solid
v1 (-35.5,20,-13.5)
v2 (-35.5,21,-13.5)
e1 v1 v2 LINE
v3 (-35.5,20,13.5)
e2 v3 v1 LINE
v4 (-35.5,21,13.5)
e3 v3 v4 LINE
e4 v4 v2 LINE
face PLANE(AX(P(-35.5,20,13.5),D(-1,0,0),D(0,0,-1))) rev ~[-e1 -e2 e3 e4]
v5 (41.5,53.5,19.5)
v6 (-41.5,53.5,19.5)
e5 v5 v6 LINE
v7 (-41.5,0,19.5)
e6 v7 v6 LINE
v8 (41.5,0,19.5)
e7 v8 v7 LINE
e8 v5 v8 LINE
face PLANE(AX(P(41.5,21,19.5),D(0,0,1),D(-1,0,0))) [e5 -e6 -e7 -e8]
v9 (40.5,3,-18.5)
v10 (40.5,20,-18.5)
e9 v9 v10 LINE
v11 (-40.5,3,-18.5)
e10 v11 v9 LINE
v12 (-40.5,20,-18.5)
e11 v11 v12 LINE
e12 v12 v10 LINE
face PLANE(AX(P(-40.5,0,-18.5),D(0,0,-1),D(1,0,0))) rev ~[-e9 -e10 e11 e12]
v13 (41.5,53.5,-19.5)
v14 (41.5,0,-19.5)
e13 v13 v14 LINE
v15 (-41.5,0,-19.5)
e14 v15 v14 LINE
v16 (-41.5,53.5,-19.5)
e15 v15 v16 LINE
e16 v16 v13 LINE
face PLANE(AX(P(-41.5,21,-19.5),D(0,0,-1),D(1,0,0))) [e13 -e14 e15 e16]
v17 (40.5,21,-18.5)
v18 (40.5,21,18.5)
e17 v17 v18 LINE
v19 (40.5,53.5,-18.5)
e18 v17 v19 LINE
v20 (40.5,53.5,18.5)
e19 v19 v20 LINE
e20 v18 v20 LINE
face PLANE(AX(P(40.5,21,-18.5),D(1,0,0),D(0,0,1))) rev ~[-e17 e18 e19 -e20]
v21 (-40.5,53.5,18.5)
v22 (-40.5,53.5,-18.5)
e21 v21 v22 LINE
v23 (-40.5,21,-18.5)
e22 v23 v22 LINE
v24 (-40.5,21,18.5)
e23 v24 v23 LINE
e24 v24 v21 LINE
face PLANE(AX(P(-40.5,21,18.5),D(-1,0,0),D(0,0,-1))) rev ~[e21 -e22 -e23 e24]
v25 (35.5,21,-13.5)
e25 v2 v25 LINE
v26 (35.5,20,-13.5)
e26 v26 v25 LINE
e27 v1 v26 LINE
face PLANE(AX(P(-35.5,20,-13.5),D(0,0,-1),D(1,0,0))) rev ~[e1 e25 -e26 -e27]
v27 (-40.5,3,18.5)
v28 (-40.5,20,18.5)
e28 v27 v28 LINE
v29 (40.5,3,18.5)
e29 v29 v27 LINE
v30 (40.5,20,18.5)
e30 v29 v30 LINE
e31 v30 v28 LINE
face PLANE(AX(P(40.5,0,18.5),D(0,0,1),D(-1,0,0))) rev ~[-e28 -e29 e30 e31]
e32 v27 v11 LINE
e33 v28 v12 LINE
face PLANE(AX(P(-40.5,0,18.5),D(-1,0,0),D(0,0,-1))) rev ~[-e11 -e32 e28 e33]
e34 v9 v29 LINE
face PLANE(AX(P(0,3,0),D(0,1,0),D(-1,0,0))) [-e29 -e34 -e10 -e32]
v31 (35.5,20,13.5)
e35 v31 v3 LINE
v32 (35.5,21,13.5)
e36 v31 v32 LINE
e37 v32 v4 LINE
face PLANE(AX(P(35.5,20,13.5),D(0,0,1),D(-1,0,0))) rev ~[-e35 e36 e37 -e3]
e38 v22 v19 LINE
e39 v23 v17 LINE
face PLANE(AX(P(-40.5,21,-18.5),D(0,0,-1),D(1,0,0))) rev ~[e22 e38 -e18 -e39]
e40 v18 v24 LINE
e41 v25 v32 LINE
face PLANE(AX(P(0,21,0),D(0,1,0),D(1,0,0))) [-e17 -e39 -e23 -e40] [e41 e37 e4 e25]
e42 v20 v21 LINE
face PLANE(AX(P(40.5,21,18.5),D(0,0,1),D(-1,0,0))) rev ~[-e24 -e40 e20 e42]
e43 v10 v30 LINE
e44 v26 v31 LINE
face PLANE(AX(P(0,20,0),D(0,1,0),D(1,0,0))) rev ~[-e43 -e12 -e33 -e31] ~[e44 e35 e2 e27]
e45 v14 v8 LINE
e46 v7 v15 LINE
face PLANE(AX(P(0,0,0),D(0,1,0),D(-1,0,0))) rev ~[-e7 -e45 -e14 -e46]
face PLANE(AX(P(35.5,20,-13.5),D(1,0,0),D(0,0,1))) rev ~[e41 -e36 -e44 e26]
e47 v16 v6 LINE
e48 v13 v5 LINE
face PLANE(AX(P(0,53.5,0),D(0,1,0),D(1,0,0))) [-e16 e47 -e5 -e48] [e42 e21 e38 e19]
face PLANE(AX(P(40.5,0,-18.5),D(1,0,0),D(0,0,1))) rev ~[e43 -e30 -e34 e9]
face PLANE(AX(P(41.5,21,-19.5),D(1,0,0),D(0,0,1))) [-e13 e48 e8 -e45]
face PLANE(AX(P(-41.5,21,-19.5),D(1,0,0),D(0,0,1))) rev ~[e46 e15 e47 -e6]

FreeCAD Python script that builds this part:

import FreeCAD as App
import Part
import Sketcher
Q = App.Units.Quantity


def add_polygon(sketch, points):
    """Adds a closed chain of lines whose ends are joined by coincident constraints."""
    first, n = sketch.GeometryCount, len(points)
    for a, b in zip(points, points[1:] + points[:1]):
        sketch.addGeometry(Part.LineSegment(App.Vector(*a, 0), App.Vector(*b, 0)), False)
    for i in range(n):
        sketch.addConstraint(Sketcher.Constraint("Coincident", first + i, 2, first + (i + 1) % n, 1))

doc = App.newDocument("Part")
params = doc.addObject("Spreadsheet::Sheet", "Params")
for row, (alias, value) in enumerate([
    ("sketch1_width", "81 mm"),
    ("sketch1_height", "37 mm"),
    ("pad1_length", "3 mm"),
    ("sketch2_width", "83 mm"),
    ("sketch2_height", "39 mm"),
    ("pad2_length", "20 mm"),
    ("sketch3_width", "83 mm"),
    ("sketch3_height", "39 mm"),
    ("pad3_length", "1 mm"),
    ("sketch4_width", "83 mm"),
    ("sketch4_height", "39 mm"),
    ("pad4_length", "32.5 mm"),
], start=1):
    params.set(f"A{row}", alias)
    params.set(f"B{row}", "=" + value)
    params.setAlias(f"B{row}", alias)

body = doc.addObject("PartDesign::Body", "Body")

# Sketch on XZ plane
sketch1 = body.newObject("Sketcher::SketchObject", "Sketch")
sketch1.AttachmentSupport = (doc.getObject("XZ_Plane"), [""])
sketch1.MapMode = "FlatFace"
add_polygon(sketch1, [(-40.5, 18.5), (40.5, 18.5), (40.5, -18.5), (-40.5, -18.5)])  # lines 0-3
sketch1.addConstraint([
    Sketcher.Constraint("Horizontal", 0),
    Sketcher.Constraint("Vertical", 1),
    Sketcher.Constraint("Horizontal", 2),
    Sketcher.Constraint("Vertical", 3),
    Sketcher.Constraint("Symmetric", 0, 2, 2, 2, -1, 1),
    Sketcher.Constraint("DistanceX", 0, 1, 0, 2, Q("81 mm")),
    Sketcher.Constraint("DistanceY", 1, 2, 1, 1, Q("37 mm")),
])
sketch1.setExpression("Constraints[9]", "Params.sketch1_width")
sketch1.setExpression("Constraints[10]", "Params.sketch1_height")
pad1 = body.newObject("PartDesign::Pad", "Pad")
pad1.Profile = sketch1
pad1.setExpression("Length", "Params.pad1_length")
pad1.Reversed = True

# Sketch on XZ plane
sketch2 = body.newObject("Sketcher::SketchObject", "Sketch001")
sketch2.AttachmentSupport = (doc.getObject("XZ_Plane"), [""])
sketch2.MapMode = "FlatFace"
add_polygon(sketch2, [(-41.5, 19.5), (41.5, 19.5), (41.5, -19.5), (-41.5, -19.5)])  # lines 0-3
add_polygon(sketch2, [(40.5, -18.5), (40.5, 18.5), (-40.5, 18.5), (-40.5, -18.5)])  # lines 4-7
sketch2.addConstraint([
    Sketcher.Constraint("Horizontal", 0),
    Sketcher.Constraint("Vertical", 1),
    Sketcher.Constraint("Horizontal", 2),
    Sketcher.Constraint("Vertical", 3),
    Sketcher.Constraint("Vertical", 4),
    Sketcher.Constraint("Horizontal", 5),
    Sketcher.Constraint("Vertical", 6),
    Sketcher.Constraint("Horizontal", 7),
    Sketcher.Constraint("Symmetric", 0, 2, 2, 2, -1, 1),
    Sketcher.Constraint("Symmetric", 4, 2, 6, 2, -1, 1),
    Sketcher.Constraint("DistanceX", 0, 1, 0, 2, Q("83 mm")),
    Sketcher.Constraint("DistanceY", 1, 2, 1, 1, Q("39 mm")),
    Sketcher.Constraint("DistanceX", 4, 2, 0, 2, Q("1 mm")),
    Sketcher.Constraint("DistanceY", 4, 2, 0, 2, Q("1 mm")),
])
sketch2.setExpression("Constraints[18]", "Params.sketch2_width")
sketch2.setExpression("Constraints[19]", "Params.sketch2_height")
pad2 = body.newObject("PartDesign::Pad", "Pad001")
pad2.Profile = sketch2
pad2.setExpression("Length", "Params.pad2_length")
pad2.Reversed = True

# Sketch on XZ plane
sketch3 = body.newObject("Sketcher::SketchObject", "Sketch002")
sketch3.AttachmentSupport = (doc.getObject("XZ_Plane"), [""])
sketch3.MapMode = "FlatFace"
sketch3.AttachmentOffset = App.Placement(App.Vector(0, 0, -20), App.Rotation())
add_polygon(sketch3, [(41.5, 19.5), (41.5, -19.5), (-41.5, -19.5), (-41.5, 19.5)])  # lines 0-3
add_polygon(sketch3, [(35.5, -13.5), (35.5, 13.5), (-35.5, 13.5), (-35.5, -13.5)])  # lines 4-7
sketch3.addConstraint([
    Sketcher.Constraint("Vertical", 0),
    Sketcher.Constraint("Horizontal", 1),
    Sketcher.Constraint("Vertical", 2),
    Sketcher.Constraint("Horizontal", 3),
    Sketcher.Constraint("Vertical", 4),
    Sketcher.Constraint("Horizontal", 5),
    Sketcher.Constraint("Vertical", 6),
    Sketcher.Constraint("Horizontal", 7),
    Sketcher.Constraint("Symmetric", 0, 2, 2, 2, -1, 1),
    Sketcher.Constraint("Symmetric", 4, 2, 6, 2, -1, 1),
    Sketcher.Constraint("DistanceX", 4, 2, 3, 2, Q("6 mm")),
    Sketcher.Constraint("DistanceY", 4, 2, 3, 2, Q("6 mm")),
    Sketcher.Constraint("DistanceX", 1, 2, 1, 1, Q("83 mm")),
    Sketcher.Constraint("DistanceY", 0, 2, 0, 1, Q("39 mm")),
])
sketch3.setExpression("Constraints[20]", "Params.sketch3_width")
sketch3.setExpression("Constraints[21]", "Params.sketch3_height")
pad3 = body.newObject("PartDesign::Pad", "Pad002")
pad3.Profile = sketch3
pad3.setExpression("Length", "Params.pad3_length")
pad3.Reversed = True

# Sketch on XZ plane
sketch4 = body.newObject("Sketcher::SketchObject", "Sketch003")
sketch4.AttachmentSupport = (doc.getObject("XZ_Plane"), [""])
sketch4.MapMode = "FlatFace"
sketch4.AttachmentOffset = App.Placement(App.Vector(0, 0, -21), App.Rotation())
add_polygon(sketch4, [(41.5, -19.5), (-41.5, -19.5), (-41.5, 19.5), (41.5, 19.5)])  # lines 0-3
add_polygon(sketch4, [(40.5, -18.5), (40.5, 18.5), (-40.5, 18.5), (-40.5, -18.5)])  # lines 4-7
sketch4.addConstraint([
    Sketcher.Constraint("Horizontal", 0),
    Sketcher.Constraint("Vertical", 1),
    Sketcher.Constraint("Horizontal", 2),
    Sketcher.Constraint("Vertical", 3),
    Sketcher.Constraint("Vertical", 4),
    Sketcher.Constraint("Horizontal", 5),
    Sketcher.Constraint("Vertical", 6),
    Sketcher.Constraint("Horizontal", 7),
    Sketcher.Constraint("Symmetric", 0, 2, 2, 2, -1, 1),
    Sketcher.Constraint("Symmetric", 4, 2, 6, 2, -1, 1),
    Sketcher.Constraint("DistanceX", 4, 2, 2, 2, Q("1 mm")),
    Sketcher.Constraint("DistanceY", 4, 2, 2, 2, Q("1 mm")),
    Sketcher.Constraint("DistanceX", 0, 2, 0, 1, Q("83 mm")),
    Sketcher.Constraint("DistanceY", 1, 1, 1, 2, Q("39 mm")),
])
sketch4.setExpression("Constraints[20]", "Params.sketch4_width")
sketch4.setExpression("Constraints[21]", "Params.sketch4_height")
pad4 = body.newObject("PartDesign::Pad", "Pad003")
pad4.Profile = sketch4
pad4.setExpression("Length", "Params.pad4_length")
pad4.Reversed = True

doc.recompute()
